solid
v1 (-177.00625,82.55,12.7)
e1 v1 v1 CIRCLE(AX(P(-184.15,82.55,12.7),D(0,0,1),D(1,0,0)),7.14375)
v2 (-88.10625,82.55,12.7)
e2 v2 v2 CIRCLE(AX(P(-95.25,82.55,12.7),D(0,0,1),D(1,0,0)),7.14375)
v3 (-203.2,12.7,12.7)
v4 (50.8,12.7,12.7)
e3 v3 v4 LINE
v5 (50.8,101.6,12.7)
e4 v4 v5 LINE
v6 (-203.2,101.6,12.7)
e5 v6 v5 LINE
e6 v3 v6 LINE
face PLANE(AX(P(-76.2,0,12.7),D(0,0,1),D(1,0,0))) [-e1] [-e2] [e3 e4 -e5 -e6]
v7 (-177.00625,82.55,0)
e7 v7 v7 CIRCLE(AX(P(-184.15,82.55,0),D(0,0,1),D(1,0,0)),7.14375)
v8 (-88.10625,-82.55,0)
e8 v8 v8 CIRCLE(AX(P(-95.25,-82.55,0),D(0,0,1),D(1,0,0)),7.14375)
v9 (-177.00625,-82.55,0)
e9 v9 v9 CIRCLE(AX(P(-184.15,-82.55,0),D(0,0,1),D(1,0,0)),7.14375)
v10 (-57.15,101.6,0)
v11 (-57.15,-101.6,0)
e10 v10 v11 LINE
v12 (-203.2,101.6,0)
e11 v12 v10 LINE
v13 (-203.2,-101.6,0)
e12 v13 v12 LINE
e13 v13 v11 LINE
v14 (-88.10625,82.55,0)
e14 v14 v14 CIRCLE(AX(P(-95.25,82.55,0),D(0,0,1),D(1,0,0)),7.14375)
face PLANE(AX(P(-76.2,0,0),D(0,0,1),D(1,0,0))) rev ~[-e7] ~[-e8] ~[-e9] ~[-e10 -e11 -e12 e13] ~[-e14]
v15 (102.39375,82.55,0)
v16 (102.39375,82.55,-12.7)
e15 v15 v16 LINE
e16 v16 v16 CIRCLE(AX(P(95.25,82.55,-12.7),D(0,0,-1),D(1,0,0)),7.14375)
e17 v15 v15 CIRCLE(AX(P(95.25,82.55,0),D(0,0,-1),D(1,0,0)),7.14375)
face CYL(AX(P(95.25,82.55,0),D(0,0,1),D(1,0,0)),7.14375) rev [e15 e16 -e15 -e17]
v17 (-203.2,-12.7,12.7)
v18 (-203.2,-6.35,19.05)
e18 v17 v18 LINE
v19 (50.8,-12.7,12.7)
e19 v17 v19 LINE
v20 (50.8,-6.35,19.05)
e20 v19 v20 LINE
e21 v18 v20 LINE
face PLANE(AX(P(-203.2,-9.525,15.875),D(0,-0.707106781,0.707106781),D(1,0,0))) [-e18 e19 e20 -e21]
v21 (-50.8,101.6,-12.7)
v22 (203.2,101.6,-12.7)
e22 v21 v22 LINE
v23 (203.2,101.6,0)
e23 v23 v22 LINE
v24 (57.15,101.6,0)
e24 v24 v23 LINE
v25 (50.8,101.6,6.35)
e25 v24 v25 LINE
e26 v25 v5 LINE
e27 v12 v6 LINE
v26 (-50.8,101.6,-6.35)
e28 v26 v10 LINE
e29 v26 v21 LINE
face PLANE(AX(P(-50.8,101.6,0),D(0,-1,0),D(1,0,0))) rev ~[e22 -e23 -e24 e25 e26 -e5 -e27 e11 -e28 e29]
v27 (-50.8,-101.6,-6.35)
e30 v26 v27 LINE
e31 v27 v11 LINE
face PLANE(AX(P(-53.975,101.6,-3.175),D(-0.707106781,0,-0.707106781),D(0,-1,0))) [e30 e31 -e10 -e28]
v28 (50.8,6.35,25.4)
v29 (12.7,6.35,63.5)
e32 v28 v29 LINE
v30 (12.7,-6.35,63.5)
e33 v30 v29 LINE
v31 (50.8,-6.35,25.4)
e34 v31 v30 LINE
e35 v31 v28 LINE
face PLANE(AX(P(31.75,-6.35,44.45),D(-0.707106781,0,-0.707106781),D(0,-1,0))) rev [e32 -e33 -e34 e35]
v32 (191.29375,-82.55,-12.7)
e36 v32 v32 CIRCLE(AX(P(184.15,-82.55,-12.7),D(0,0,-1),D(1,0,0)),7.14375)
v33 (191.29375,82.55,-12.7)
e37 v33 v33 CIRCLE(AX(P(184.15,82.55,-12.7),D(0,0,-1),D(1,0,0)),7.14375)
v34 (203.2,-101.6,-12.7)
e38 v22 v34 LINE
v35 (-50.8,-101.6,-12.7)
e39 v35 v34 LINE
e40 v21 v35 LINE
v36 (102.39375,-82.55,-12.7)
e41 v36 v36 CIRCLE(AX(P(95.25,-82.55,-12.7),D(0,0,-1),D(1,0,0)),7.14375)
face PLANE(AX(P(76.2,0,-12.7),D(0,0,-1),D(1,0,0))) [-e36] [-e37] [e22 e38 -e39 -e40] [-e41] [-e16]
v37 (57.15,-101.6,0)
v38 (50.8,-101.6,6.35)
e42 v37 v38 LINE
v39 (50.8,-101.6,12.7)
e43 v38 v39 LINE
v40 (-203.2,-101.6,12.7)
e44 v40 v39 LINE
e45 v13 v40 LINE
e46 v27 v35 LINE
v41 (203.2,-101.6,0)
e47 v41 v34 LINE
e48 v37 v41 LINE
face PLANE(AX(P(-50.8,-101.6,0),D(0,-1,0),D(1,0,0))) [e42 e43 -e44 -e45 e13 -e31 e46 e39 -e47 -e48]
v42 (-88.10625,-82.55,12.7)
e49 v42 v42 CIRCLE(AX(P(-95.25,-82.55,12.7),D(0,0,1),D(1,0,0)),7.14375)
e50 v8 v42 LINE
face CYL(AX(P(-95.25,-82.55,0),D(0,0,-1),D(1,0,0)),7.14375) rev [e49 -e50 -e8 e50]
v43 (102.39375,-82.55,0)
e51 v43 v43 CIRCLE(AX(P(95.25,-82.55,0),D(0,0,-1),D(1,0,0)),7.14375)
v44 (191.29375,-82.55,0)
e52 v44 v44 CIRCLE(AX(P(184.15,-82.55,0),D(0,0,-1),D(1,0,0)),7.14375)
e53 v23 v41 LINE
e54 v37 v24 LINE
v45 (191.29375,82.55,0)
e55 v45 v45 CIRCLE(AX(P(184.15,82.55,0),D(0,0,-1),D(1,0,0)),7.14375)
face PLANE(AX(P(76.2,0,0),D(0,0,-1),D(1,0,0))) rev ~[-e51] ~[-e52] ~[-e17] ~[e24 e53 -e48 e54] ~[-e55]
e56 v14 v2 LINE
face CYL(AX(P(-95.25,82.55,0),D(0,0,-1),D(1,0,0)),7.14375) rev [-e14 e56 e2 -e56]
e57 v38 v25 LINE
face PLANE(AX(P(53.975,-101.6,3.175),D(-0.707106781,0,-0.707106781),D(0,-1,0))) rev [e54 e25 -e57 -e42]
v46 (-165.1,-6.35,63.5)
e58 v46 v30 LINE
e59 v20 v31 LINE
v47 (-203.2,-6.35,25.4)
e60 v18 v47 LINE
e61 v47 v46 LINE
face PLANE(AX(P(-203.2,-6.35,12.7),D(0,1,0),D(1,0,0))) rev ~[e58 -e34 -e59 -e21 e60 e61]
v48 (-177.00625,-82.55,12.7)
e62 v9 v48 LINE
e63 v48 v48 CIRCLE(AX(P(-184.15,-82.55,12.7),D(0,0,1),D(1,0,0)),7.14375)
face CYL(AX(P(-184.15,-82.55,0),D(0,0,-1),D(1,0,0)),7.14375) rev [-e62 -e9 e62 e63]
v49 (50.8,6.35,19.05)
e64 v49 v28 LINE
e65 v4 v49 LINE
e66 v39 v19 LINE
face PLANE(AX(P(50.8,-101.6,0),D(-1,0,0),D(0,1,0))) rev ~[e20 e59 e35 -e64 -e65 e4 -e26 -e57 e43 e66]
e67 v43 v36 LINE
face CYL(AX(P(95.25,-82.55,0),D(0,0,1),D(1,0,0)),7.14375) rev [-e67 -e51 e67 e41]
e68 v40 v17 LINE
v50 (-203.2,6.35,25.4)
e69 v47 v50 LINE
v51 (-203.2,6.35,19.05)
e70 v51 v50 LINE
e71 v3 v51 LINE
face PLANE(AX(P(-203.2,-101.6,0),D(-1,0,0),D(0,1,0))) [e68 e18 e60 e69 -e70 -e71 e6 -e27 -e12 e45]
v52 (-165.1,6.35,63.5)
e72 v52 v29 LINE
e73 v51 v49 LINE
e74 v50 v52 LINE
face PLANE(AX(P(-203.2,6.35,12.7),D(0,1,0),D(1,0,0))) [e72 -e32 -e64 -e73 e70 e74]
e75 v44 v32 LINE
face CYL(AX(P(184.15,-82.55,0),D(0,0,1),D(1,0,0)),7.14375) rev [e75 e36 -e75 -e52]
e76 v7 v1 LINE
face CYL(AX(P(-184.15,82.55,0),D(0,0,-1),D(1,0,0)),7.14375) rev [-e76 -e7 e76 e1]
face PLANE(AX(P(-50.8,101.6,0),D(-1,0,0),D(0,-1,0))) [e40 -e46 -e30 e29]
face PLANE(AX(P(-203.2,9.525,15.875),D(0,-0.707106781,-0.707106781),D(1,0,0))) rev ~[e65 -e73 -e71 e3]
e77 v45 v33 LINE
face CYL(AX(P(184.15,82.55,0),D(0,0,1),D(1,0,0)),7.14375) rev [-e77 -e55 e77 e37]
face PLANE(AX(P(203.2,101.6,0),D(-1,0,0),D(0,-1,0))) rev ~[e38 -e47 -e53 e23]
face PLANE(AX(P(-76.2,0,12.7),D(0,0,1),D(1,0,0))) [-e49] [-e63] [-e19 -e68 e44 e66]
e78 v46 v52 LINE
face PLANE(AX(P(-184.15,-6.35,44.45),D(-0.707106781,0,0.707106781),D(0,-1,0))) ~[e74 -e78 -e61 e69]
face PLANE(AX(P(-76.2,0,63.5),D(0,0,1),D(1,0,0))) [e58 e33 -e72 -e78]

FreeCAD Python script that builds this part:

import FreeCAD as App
import Part
import Sketcher

V = App.Vector
Q = App.Units.Quantity


def edges_at(feature, points):
    """Names of the edges that pass closest to the given points."""
    edges = feature.Shape.Edges
    near = lambda p: min(range(len(edges)), key=lambda i: edges[i].distToShape(Part.Vertex(*p))[0])
    return sorted({f"Edge{near(p) + 1}" for p in points})


def add_polygon(sketch, points):
    """Adds a closed chain of lines whose ends are joined by coincident constraints."""
    first, n = sketch.GeometryCount, len(points)
    for a, b in zip(points, points[1:] + points[:1]):
        sketch.addGeometry(Part.LineSegment(App.Vector(*a, 0), App.Vector(*b, 0)), False)
    for i in range(n):
        sketch.addConstraint(Sketcher.Constraint("Coincident", first + i, 2, first + (i + 1) % n, 1))

doc = App.newDocument("Part")
body = doc.addObject("PartDesign::Body", "Body")

# Sketch on XY plane
sketch1 = body.newObject("Sketcher::SketchObject", "Sketch")
sketch1.AttachmentSupport = (doc.getObject("XY_Plane"), [""])
sketch1.MapMode = "FlatFace"
add_polygon(sketch1, [(-203.2, 101.6), (-203.2, -101.6), (50.8, -101.6), (50.8, 101.6)])  # lines 0-3
sketch1.addGeometry(Part.Circle(V(-184.15, -82.55, 0), V(0, 0, 1), 7.14375), False)  # 4
sketch1.addGeometry(Part.Circle(V(-95.25, -82.55, 0), V(0, 0, 1), 7.14375), False)  # 5
sketch1.addGeometry(Part.Circle(V(-184.15, 82.55, 0), V(0, 0, 1), 7.14375), False)  # 6
sketch1.addGeometry(Part.Circle(V(-95.25, 82.55, 0), V(0, 0, 1), 7.14375), False)  # 7
sketch1.addConstraint([
    Sketcher.Constraint("Vertical", 0),
    Sketcher.Constraint("Horizontal", 1),
    Sketcher.Constraint("Vertical", 2),
    Sketcher.Constraint("Horizontal", 3),
    Sketcher.Constraint("Equal", 4, 5),
    Sketcher.Constraint("Equal", 5, 6),
    Sketcher.Constraint("Equal", 6, 7),
    Sketcher.Constraint("Symmetric", 4, 3, 6, 3, -1),
    Sketcher.Constraint("Symmetric", 5, 3, 7, 3, -1),
    Sketcher.Constraint("Horizontal", 4, 3, 5, 3),
    Sketcher.Constraint("DistanceX", 1, 1, 1, 2, Q("10 in")),
    Sketcher.Constraint("DistanceY", 0, 2, 0, 1, Q("8 in")),
    Sketcher.Constraint("Diameter", 4, Q("0.5625 in")),
    Sketcher.Constraint("DistanceX", 0, 2, -1, 1, Q("8 in")),
    Sketcher.Constraint("DistanceY", 0, 2, -1, 1, Q("4 in")),
    Sketcher.Constraint("DistanceX", 4, 3, 5, 3, Q("3.5 in")),
    Sketcher.Constraint("DistanceY", 4, 3, 6, 3, Q("6.5 in")),
    Sketcher.Constraint("DistanceX", 4, 3, -1, 1, Q("7.25 in")),
])
pad1 = body.newObject("PartDesign::Pad", "Pad")
pad1.Profile = sketch1
pad1.Length = Q("0.5 in")
body2 = doc.addObject("PartDesign::Body", "Body001")

# Sketch on XY plane
sketch2 = body2.newObject("Sketcher::SketchObject", "Sketch001")
sketch2.AttachmentSupport = (doc.getObject("XY_Plane001"), [""])
sketch2.MapMode = "FlatFace"
add_polygon(sketch2, [(-50.8, -101.6), (-50.8, 101.6), (203.2, 101.6), (203.2, -101.6)])  # lines 0-3
sketch2.addGeometry(Part.Circle(V(95.25, 82.55, 0), V(0, 0, 1), 7.14375), False)  # 4
sketch2.addGeometry(Part.Circle(V(184.15, 82.55, 0), V(0, 0, 1), 7.14375), False)  # 5
sketch2.addGeometry(Part.Circle(V(95.25, -82.55, 0), V(0, 0, 1), 7.14375), False)  # 6
sketch2.addGeometry(Part.Circle(V(184.15, -82.55, 0), V(0, 0, 1), 7.14375), False)  # 7
sketch2.addConstraint([
    Sketcher.Constraint("Vertical", 0),
    Sketcher.Constraint("Horizontal", 1),
    Sketcher.Constraint("Vertical", 2),
    Sketcher.Constraint("Horizontal", 3),
    Sketcher.Constraint("Equal", 4, 5),
    Sketcher.Constraint("Equal", 5, 6),
    Sketcher.Constraint("Equal", 6, 7),
    Sketcher.Constraint("Symmetric", 4, 3, 6, 3, -1),
    Sketcher.Constraint("Symmetric", 5, 3, 7, 3, -1),
    Sketcher.Constraint("Horizontal", 4, 3, 5, 3),
    Sketcher.Constraint("DistanceX", 1, 1, 1, 2, Q("10 in")),
    Sketcher.Constraint("DistanceY", 0, 1, 0, 2, Q("8 in")),
    Sketcher.Constraint("Diameter", 4, Q("0.5625 in")),
    Sketcher.Constraint("DistanceX", 0, 2, -1, 1, Q("2 in")),
    Sketcher.Constraint("DistanceY", -1, 1, 0, 2, Q("4 in")),
    Sketcher.Constraint("DistanceX", 4, 3, 5, 3, Q("3.5 in")),
    Sketcher.Constraint("DistanceY", 6, 3, 4, 3, Q("6.5 in")),
    Sketcher.Constraint("DistanceX", -1, 1, 4, 3, Q("3.75 in")),
])
pad2 = body2.newObject("PartDesign::Pad", "Pad001")
pad2.Profile = sketch2
pad2.Length = Q("0.5 in")
pad2.Reversed = True
body3 = doc.addObject("PartDesign::Body", "Body002")

# Sketch on XY plane
sketch3 = body3.newObject("Sketcher::SketchObject", "Sketch002")
sketch3.AttachmentSupport = (doc.getObject("XY_Plane002"), [""])
sketch3.MapMode = "FlatFace"
sketch3.AttachmentOffset = App.Placement(V(0, 0, 0.5 * 25.4), App.Rotation())
add_polygon(sketch3, [(-203.2, 6.35), (-203.2, -6.35), (50.8, -6.35), (50.8, 6.35)])  # lines 0-3
sketch3.addConstraint([
    Sketcher.Constraint("Vertical", 0),
    Sketcher.Constraint("Horizontal", 1),
    Sketcher.Constraint("Vertical", 2),
    Sketcher.Constraint("Horizontal", 3),
    Sketcher.Constraint("DistanceX", 1, 1, 1, 2, Q("10 in")),
    Sketcher.Constraint("DistanceY", 0, 2, 0, 1, Q("0.5 in")),
    Sketcher.Constraint("DistanceX", 0, 2, -1, 1, Q("8 in")),
    Sketcher.Constraint("DistanceY", 0, 2, -1, 1, Q("0.25 in")),
])
pad3 = body3.newObject("PartDesign::Pad", "Pad002")
pad3.Profile = sketch3
pad3.Length = Q("2 in")
doc.recompute()

chamfer = body3.newObject("PartDesign::Chamfer", "Chamfer")
chamfer.Base = (pad3, edges_at(pad3, [(-203.2, 0, 63.5), (50.8, 0, 63.5)]))
chamfer.Size = Q("1.5 in")
body4 = doc.addObject("PartDesign::Body", "Body003")

# Sketch on XY plane
sketch4 = body4.newObject("Sketcher::SketchObject", "Sketch003")
sketch4.AttachmentSupport = (doc.getObject("XY_Plane003"), [""])
sketch4.MapMode = "FlatFace"
sketch4.AttachmentOffset = App.Placement(V(0, 0, -0.5 * 25.4), App.Rotation())
add_polygon(sketch4, [(-50.8, -6.35), (-50.8, 6.35), (203.2, 6.35), (203.2, -6.35)])  # lines 0-3
sketch4.addConstraint([
    Sketcher.Constraint("Vertical", 0),
    Sketcher.Constraint("Horizontal", 1),
    Sketcher.Constraint("Vertical", 2),
    Sketcher.Constraint("Horizontal", 3),
    Sketcher.Constraint("DistanceX", 1, 1, 1, 2, Q("10 in")),
    Sketcher.Constraint("DistanceY", 0, 1, 0, 2, Q("0.5 in")),
    Sketcher.Constraint("DistanceX", 0, 2, -1, 1, Q("2 in")),
    Sketcher.Constraint("DistanceY", -1, 1, 0, 2, Q("0.25 in")),
])
pad4 = body4.newObject("PartDesign::Pad", "Pad003")
pad4.Profile = sketch4
pad4.Length = Q("2 in")
pad4.Reversed = True
doc.recompute()

chamfer2 = body4.newObject("PartDesign::Chamfer", "Chamfer001")
chamfer2.Base = (pad4, edges_at(pad4, [(203.2, 0, -63.5), (-50.8, 0, -63.5)]))
chamfer2.Size = Q("1.5 in")
doc.recompute()

boolean = body.newObject("PartDesign::Boolean", "Boolean")
boolean.Type = "Fuse"
boolean.addObjects([body3])
doc.recompute()

boolean2 = body.newObject("PartDesign::Boolean", "Boolean001")
boolean2.Type = "Fuse"
boolean2.addObjects([body2])
doc.recompute()

boolean3 = body.newObject("PartDesign::Boolean", "Boolean002")
boolean3.Type = "Fuse"
boolean3.addObjects([body4])
doc.recompute()

chamfer3 = body.newObject("PartDesign::Chamfer", "Chamfer002")
chamfer3.Base = (boolean3, edges_at(boolean3, [
    (50.8, 0, 0),
    (-76.2, -6.35, 12.7),
    (-76.2, 6.35, 12.7),
    (-50.8, 0, 0),
    (76.2, 6.35, -12.7),
    (76.2, -6.35, -12.7),
]))
chamfer3.Size = Q("0.25 in")

# Sketch on XZ plane
sketch5 = body.newObject("Sketcher::SketchObject", "Sketch004")
sketch5.AttachmentSupport = (doc.getObject("XZ_Plane"), [""])
sketch5.MapMode = "FlatFace"
sketch5.AttachmentOffset = App.Placement(V(0, 0, 4 * 25.4), App.Rotation())
add_polygon(sketch5, [(-50.8, -12.7), (-50.8, -113.874368), (239.744291, -113.874368), (239.744291, -12.7)])  # lines 0-3
sketch5.addConstraint([
    Sketcher.Constraint("Vertical", 0),
    Sketcher.Constraint("Horizontal", 1),
    Sketcher.Constraint("Vertical", 2),
    Sketcher.Constraint("Horizontal", 3),
    Sketcher.Constraint("DistanceX", 0, 2, -1, 1, Q("2 in")),
    Sketcher.Constraint("DistanceY", 2, 2, -1, 1, Q("0.5 in")),
    Sketcher.Constraint("DistanceX", 1, 1, 1, 2, Q("290.544291 mm")),
    Sketcher.Constraint("DistanceY", 0, 2, 0, 1, Q("101.174368 mm")),
])
pocket1 = body.newObject("PartDesign::Pocket", "Pocket")
pocket1.Profile = sketch5
pocket1.Type = "ThroughAll"

doc.recompute()
